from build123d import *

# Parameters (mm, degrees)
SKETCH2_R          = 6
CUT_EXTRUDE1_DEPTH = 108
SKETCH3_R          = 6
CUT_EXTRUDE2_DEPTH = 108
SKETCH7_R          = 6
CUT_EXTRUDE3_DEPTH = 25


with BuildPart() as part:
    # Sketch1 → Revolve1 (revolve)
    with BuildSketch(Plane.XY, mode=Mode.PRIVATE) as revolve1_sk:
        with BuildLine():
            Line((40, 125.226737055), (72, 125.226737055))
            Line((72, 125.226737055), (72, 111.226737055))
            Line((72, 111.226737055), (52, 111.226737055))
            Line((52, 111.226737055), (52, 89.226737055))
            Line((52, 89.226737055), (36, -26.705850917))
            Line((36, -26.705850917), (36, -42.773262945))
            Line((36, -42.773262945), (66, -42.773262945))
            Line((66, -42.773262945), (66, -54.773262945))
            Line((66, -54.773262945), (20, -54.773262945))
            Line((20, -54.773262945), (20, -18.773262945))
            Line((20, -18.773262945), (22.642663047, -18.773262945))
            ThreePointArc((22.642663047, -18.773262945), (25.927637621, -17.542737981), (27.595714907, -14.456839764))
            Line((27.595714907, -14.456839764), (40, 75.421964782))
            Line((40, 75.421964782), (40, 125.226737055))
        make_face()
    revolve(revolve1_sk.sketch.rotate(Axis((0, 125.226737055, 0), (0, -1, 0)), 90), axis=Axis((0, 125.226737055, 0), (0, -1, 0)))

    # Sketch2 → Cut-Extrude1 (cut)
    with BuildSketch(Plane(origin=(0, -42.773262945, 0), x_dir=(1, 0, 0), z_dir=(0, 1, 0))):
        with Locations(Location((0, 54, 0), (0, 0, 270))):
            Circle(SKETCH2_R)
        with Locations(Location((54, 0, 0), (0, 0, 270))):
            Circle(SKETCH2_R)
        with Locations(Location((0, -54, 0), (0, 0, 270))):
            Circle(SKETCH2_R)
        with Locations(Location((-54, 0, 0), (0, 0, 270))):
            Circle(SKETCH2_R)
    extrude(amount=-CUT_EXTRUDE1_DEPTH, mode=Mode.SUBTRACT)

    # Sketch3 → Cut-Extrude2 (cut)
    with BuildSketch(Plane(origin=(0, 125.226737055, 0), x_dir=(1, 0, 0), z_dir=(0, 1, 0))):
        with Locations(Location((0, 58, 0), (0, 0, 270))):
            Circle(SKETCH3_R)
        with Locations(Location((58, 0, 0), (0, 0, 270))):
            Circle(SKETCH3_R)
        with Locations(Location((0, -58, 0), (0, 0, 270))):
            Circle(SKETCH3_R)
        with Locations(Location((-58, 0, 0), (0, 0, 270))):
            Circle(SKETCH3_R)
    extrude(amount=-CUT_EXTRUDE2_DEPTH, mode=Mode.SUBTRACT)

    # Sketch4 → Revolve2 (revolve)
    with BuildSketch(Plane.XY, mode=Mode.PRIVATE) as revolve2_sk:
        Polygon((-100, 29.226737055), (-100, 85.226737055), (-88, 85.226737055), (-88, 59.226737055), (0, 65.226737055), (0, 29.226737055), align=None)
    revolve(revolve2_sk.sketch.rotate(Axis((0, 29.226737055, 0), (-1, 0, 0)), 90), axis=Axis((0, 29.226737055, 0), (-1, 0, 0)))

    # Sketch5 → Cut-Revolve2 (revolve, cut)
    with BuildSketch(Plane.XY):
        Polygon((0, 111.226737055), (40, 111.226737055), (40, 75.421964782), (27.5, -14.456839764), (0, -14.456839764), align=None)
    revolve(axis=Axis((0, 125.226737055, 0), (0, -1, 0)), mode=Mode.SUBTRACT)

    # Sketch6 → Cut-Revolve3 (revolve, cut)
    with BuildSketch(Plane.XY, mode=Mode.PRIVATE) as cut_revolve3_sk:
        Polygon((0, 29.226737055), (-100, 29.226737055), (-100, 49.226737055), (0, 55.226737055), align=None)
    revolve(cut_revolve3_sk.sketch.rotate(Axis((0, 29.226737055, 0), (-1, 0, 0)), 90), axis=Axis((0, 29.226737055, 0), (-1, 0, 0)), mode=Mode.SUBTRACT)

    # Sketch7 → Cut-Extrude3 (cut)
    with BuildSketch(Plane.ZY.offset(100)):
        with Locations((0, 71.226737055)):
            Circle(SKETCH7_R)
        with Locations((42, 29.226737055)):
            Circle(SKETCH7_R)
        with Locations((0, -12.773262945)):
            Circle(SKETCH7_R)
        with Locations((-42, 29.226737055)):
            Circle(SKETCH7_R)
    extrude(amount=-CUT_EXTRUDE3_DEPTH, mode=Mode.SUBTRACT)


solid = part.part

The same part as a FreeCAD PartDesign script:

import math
import FreeCAD as App
import Part
import Sketcher
Q = App.Units.Quantity


def add_polygon(sketch, points):
    """Adds a closed chain of lines whose ends are joined by coincident constraints."""
    first, n = sketch.GeometryCount, len(points)
    for a, b in zip(points, points[1:] + points[:1]):
        sketch.addGeometry(Part.LineSegment(App.Vector(*a, 0), App.Vector(*b, 0)), False)
    for i in range(n):
        sketch.addConstraint(Sketcher.Constraint("Coincident", first + i, 2, first + (i + 1) % n, 1))

doc = App.newDocument("Part")
params = doc.addObject("Spreadsheet::Sheet", "Params")
for row, (alias, value) in enumerate([
    ("sketch1_radius", "5 mm"),
    ("sketch1_width", "32 mm"),
    ("sketch1_width2", "46 mm"),
    ("sketch1_width3", "30 mm"),
    ("sketch1_width4", "20 mm"),
    ("revolution_angle", "360 deg"),
    ("sketch2_diameter", "12 mm"),
    ("pocket1_length", "108 mm"),
    ("sketch3_diameter", "12 mm"),
    ("pocket2_length", "108 mm"),
    ("sketch4_width", "100 mm"),
    ("sketch4_width2", "12 mm"),
    ("sketch4_height", "56 mm"),
    ("sketch4_height2", "36 mm"),
    ("sketch4_height3", "26 mm"),
    ("revolution2_angle", "360 deg"),
    ("sketch5_width", "40 mm"),
    ("sketch5_width2", "27.5 mm"),
    ("groove_angle", "360 deg"),
    ("sketch6_width", "100 mm"),
    ("sketch6_height", "26 mm"),
    ("sketch6_height2", "20 mm"),
    ("groove2_angle", "360 deg"),
    ("sketch7_diameter", "12 mm"),
    ("pocket3_length", "25 mm"),
], start=1):
    params.set(f"A{row}", alias)
    params.set(f"B{row}", "=" + value)
    params.setAlias(f"B{row}", alias)

body = doc.addObject("PartDesign::Body", "Body")

sketch1 = body.newObject("Sketcher::SketchObject", "Sketch")
sketch1.AttachmentSupport = (doc.getObject("XY_Plane"), [""])
sketch1.MapMode = "FlatFace"
sketch1.addGeometry([
    Part.LineSegment(App.Vector(72, 125.2, 0), App.Vector(40, 125.2, 0)),
    Part.LineSegment(App.Vector(40, 125.2, 0), App.Vector(40, 75.4, 0)),
    Part.LineSegment(App.Vector(40, 75.4, 0), App.Vector(27.6, -14.5, 0)),
    Part.ArcOfCircle(Part.Circle(App.Vector(22.6, -13.8, 0), App.Vector(0, 0, 1), 5), math.radians(-90), math.radians(-8)),
    Part.LineSegment(App.Vector(22.6, -18.8, 0), App.Vector(20, -18.8, 0)),
    Part.LineSegment(App.Vector(20, -18.8, 0), App.Vector(20, -54.8, 0)),
    Part.LineSegment(App.Vector(20, -54.8, 0), App.Vector(66, -54.8, 0)),
    Part.LineSegment(App.Vector(66, -54.8, 0), App.Vector(66, -42.8, 0)),
    Part.LineSegment(App.Vector(66, -42.8, 0), App.Vector(36, -42.8, 0)),
    Part.LineSegment(App.Vector(36, -42.8, 0), App.Vector(36, -26.7, 0)),
    Part.LineSegment(App.Vector(36, -26.7, 0), App.Vector(52, 89.2, 0)),
    Part.LineSegment(App.Vector(52, 89.2, 0), App.Vector(52, 111.2, 0)),
    Part.LineSegment(App.Vector(52, 111.2, 0), App.Vector(72, 111.2, 0)),
    Part.LineSegment(App.Vector(72, 111.2, 0), App.Vector(72, 125.2, 0)),
], False)
sketch1.addConstraint([
    Sketcher.Constraint("Coincident", 0, 2, 1, 1),
    Sketcher.Constraint("Coincident", 1, 2, 2, 1),
    Sketcher.Constraint("Tangent", 2, 2, 3, 2),
    Sketcher.Constraint("Tangent", 3, 1, 4, 1),
    Sketcher.Constraint("Coincident", 4, 2, 5, 1),
    Sketcher.Constraint("Coincident", 5, 2, 6, 1),
    Sketcher.Constraint("Coincident", 6, 2, 7, 1),
    Sketcher.Constraint("Coincident", 7, 2, 8, 1),
    Sketcher.Constraint("Coincident", 8, 2, 9, 1),
    Sketcher.Constraint("Coincident", 9, 2, 10, 1),
    Sketcher.Constraint("Coincident", 10, 2, 11, 1),
    Sketcher.Constraint("Coincident", 11, 2, 12, 1),
    Sketcher.Constraint("Coincident", 12, 2, 13, 1),
    Sketcher.Constraint("Coincident", 13, 2, 0, 1),
    Sketcher.Constraint("Horizontal", 0),
    Sketcher.Constraint("Vertical", 1),
    Sketcher.Constraint("Horizontal", 4),
    Sketcher.Constraint("Vertical", 5),
    Sketcher.Constraint("Horizontal", 6),
    Sketcher.Constraint("Vertical", 7),
    Sketcher.Constraint("Horizontal", 8),
    Sketcher.Constraint("Vertical", 9),
    Sketcher.Constraint("Vertical", 11),
    Sketcher.Constraint("Horizontal", 12),
    Sketcher.Constraint("Vertical", 13),
    Sketcher.Constraint("Parallel", 2, 10),
    Sketcher.Constraint("Radius", 3, Q("5 mm")),
    Sketcher.Constraint("DistanceX", 0, 2, 0, 1, Q("32 mm")),
    Sketcher.Constraint("DistanceX", 6, 1, 6, 2, Q("46 mm")),
    Sketcher.Constraint("DistanceX", 8, 2, 8, 1, Q("30 mm")),
    Sketcher.Constraint("DistanceX", 12, 1, 12, 2, Q("20 mm")),
    Sketcher.Constraint("DistanceY", 5, 2, 5, 1, Q("36 mm")),
    Sketcher.Constraint("DistanceY", 7, 1, 7, 2, Q("12 mm")),
    Sketcher.Constraint("DistanceY", 11, 1, 11, 2, Q("22 mm")),
    Sketcher.Constraint("DistanceY", 13, 1, 13, 2, Q("14 mm")),
    Sketcher.Constraint("DistanceX", -1, 1, 0, 2, Q("40 mm")),
    Sketcher.Constraint("DistanceX", -1, 1, 4, 2, Q("20 mm")),
    Sketcher.Constraint("DistanceY", 3, 3, 0, 2, Q("139 mm")),
    Sketcher.Constraint("Distance", 10, Q("117.03147 mm")),
    Sketcher.Constraint("DistanceX", 4, 2, 4, 1, Q("2.642663 mm")),
    Sketcher.Constraint("DistanceY", 2, 2, -1, 1, Q("14.45684 mm")),
])
sketch1.setExpression("Constraints[26]", "Params.sketch1_radius")
sketch1.setExpression("Constraints[27]", "Params.sketch1_width")
sketch1.setExpression("Constraints[28]", "Params.sketch1_width2")
sketch1.setExpression("Constraints[29]", "Params.sketch1_width3")
sketch1.setExpression("Constraints[30]", "Params.sketch1_width4")
revolution = body.newObject("PartDesign::Revolution", "Revolution")
revolution.Profile = sketch1
revolution.ReferenceAxis = (sketch1, ["V_Axis"])
revolution.setExpression("Angle", "Params.revolution_angle")

sketch2 = body.newObject("Sketcher::SketchObject", "Sketch001")
sketch2.AttachmentSupport = (doc.getObject("XZ_Plane"), [""])
sketch2.MapMode = "FlatFace"
sketch2.AttachmentOffset = App.Placement(App.Vector(0, 0, 42.773263), App.Rotation())
sketch2.addGeometry([
    Part.Circle(App.Vector(0, -54, 0), App.Vector(0, 0, 1), 6),
    Part.Circle(App.Vector(54, 0, 0), App.Vector(0, 0, 1), 6),
    Part.Circle(App.Vector(0, 54, 0), App.Vector(0, 0, 1), 6),
    Part.Circle(App.Vector(-54, 0, 0), App.Vector(0, 0, 1), 6),
], False)
sketch2.addConstraint([
    Sketcher.Constraint("Equal", 0, 1),
    Sketcher.Constraint("Equal", 1, 2),
    Sketcher.Constraint("Equal", 2, 3),
    Sketcher.Constraint("Symmetric", 0, 3, 2, 3, -1, 1),
    Sketcher.Constraint("Symmetric", 1, 3, 3, 3, -1, 1),
    Sketcher.Constraint("PointOnObject", 0, 3, -2),
    Sketcher.Constraint("PointOnObject", 1, 3, -1),
    Sketcher.Constraint("Diameter", 0, Q("12 mm")),
    Sketcher.Constraint("DistanceY", 0, 3, -1, 1, Q("54 mm")),
    Sketcher.Constraint("DistanceX", -1, 1, 1, 3, Q("54 mm")),
])
sketch2.setExpression("Constraints[7]", "Params.sketch2_diameter")
pocket1 = body.newObject("PartDesign::Pocket", "Pocket")
pocket1.Profile = sketch2
pocket1.setExpression("Length", "Params.pocket1_length")
pocket1.Reversed = True

sketch3 = body.newObject("Sketcher::SketchObject", "Sketch002")
sketch3.AttachmentSupport = (doc.getObject("XZ_Plane"), [""])
sketch3.MapMode = "FlatFace"
sketch3.AttachmentOffset = App.Placement(App.Vector(0, 0, -125.226737), App.Rotation())
sketch3.addGeometry([
    Part.Circle(App.Vector(0, -58, 0), App.Vector(0, 0, 1), 6),
    Part.Circle(App.Vector(58, 0, 0), App.Vector(0, 0, 1), 6),
    Part.Circle(App.Vector(0, 58, 0), App.Vector(0, 0, 1), 6),
    Part.Circle(App.Vector(-58, 0, 0), App.Vector(0, 0, 1), 6),
], False)
sketch3.addConstraint([
    Sketcher.Constraint("Equal", 0, 1),
    Sketcher.Constraint("Equal", 1, 2),
    Sketcher.Constraint("Equal", 2, 3),
    Sketcher.Constraint("Symmetric", 0, 3, 2, 3, -1, 1),
    Sketcher.Constraint("Symmetric", 1, 3, 3, 3, -1, 1),
    Sketcher.Constraint("PointOnObject", 0, 3, -2),
    Sketcher.Constraint("PointOnObject", 1, 3, -1),
    Sketcher.Constraint("Diameter", 0, Q("12 mm")),
    Sketcher.Constraint("DistanceY", 0, 3, -1, 1, Q("58 mm")),
    Sketcher.Constraint("DistanceX", -1, 1, 1, 3, Q("58 mm")),
])
sketch3.setExpression("Constraints[7]", "Params.sketch3_diameter")
pocket2 = body.newObject("PartDesign::Pocket", "Pocket001")
pocket2.Profile = sketch3
pocket2.setExpression("Length", "Params.pocket2_length")
pocket2.Reversed = True

sketch4 = body.newObject("Sketcher::SketchObject", "Sketch003")
sketch4.AttachmentSupport = (doc.getObject("XY_Plane"), [""])
sketch4.MapMode = "FlatFace"
add_polygon(sketch4, [(-100, 85), (-100, 29), (0, 29), (0, 65), (-88, 59), (-88, 85)])
sketch4.addGeometry(Part.LineSegment(App.Vector(0, 29, 0), App.Vector(-100, 29, 0)), True)
sketch4.addConstraint([
    Sketcher.Constraint("Vertical", 0),
    Sketcher.Constraint("Horizontal", 1),
    Sketcher.Constraint("Vertical", 2),
    Sketcher.Constraint("Vertical", 4),
    Sketcher.Constraint("Horizontal", 5),
    Sketcher.Constraint("Horizontal", 6),
    Sketcher.Constraint("Coincident", 6, 1, 1, 2),
    Sketcher.Constraint("PointOnObject", 1, 2, -2),
    Sketcher.Constraint("Vertical", 5, 2, 6, 2),
    Sketcher.Constraint("DistanceX", 1, 1, 1, 2, Q("100 mm")),
    Sketcher.Constraint("DistanceX", 5, 2, 5, 1, Q("12 mm")),
    Sketcher.Constraint("DistanceY", 0, 2, 0, 1, Q("56 mm")),
    Sketcher.Constraint("DistanceY", 2, 1, 2, 2, Q("36 mm")),
    Sketcher.Constraint("DistanceY", 4, 1, 4, 2, Q("26 mm")),
    Sketcher.Constraint("DistanceY", -1, 1, 0, 2, Q("29.226737 mm")),
])
sketch4.setExpression("Constraints[15]", "Params.sketch4_width")
sketch4.setExpression("Constraints[16]", "Params.sketch4_width2")
sketch4.setExpression("Constraints[17]", "Params.sketch4_height")
sketch4.setExpression("Constraints[18]", "Params.sketch4_height2")
sketch4.setExpression("Constraints[19]", "Params.sketch4_height3")
revolution2 = body.newObject("PartDesign::Revolution", "Revolution001")
revolution2.Profile = sketch4
revolution2.ReferenceAxis = (sketch4, ["Axis0"])
revolution2.setExpression("Angle", "Params.revolution2_angle")

sketch5 = body.newObject("Sketcher::SketchObject", "Sketch004")
sketch5.AttachmentSupport = (doc.getObject("XY_Plane"), [""])
sketch5.MapMode = "FlatFace"
add_polygon(sketch5, [(40, 111), (0, 111), (0, -14), (28, -14), (40, 75)])
sketch5.addConstraint([
    Sketcher.Constraint("Horizontal", 0),
    Sketcher.Constraint("Vertical", 1),
    Sketcher.Constraint("Horizontal", 2),
    Sketcher.Constraint("Vertical", 4),
    Sketcher.Constraint("PointOnObject", 0, 2, -2),
    Sketcher.Constraint("DistanceX", 0, 2, 0, 1, Q("40 mm")),
    Sketcher.Constraint("DistanceX", 2, 1, 2, 2, Q("27.5 mm")),
    Sketcher.Constraint("DistanceY", 1, 2, 1, 1, Q("125.683577 mm")),
    Sketcher.Constraint("DistanceY", 4, 1, 4, 2, Q("35.804772 mm")),
    Sketcher.Constraint("DistanceY", 1, 2, -1, 1, Q("14.45684 mm")),
])
sketch5.setExpression("Constraints[10]", "Params.sketch5_width")
sketch5.setExpression("Constraints[11]", "Params.sketch5_width2")
groove = body.newObject("PartDesign::Groove", "Groove")
groove.Profile = sketch5
groove.ReferenceAxis = (sketch5, ["V_Axis"])
groove.setExpression("Angle", "Params.groove_angle")

sketch6 = body.newObject("Sketcher::SketchObject", "Sketch005")
sketch6.AttachmentSupport = (doc.getObject("XY_Plane"), [""])
sketch6.MapMode = "FlatFace"
add_polygon(sketch6, [(-100, 29), (0, 29), (0, 55), (-100, 49)])
sketch6.addGeometry(Part.LineSegment(App.Vector(0, 29, 0), App.Vector(-100, 29, 0)), True)
sketch6.addConstraint([
    Sketcher.Constraint("Horizontal", 0),
    Sketcher.Constraint("Vertical", 1),
    Sketcher.Constraint("Vertical", 3),
    Sketcher.Constraint("Horizontal", 4),
    Sketcher.Constraint("Coincident", 4, 1, 0, 2),
    Sketcher.Constraint("PointOnObject", 0, 2, -2),
    Sketcher.Constraint("Vertical", 2, 2, 4, 2),
    Sketcher.Constraint("DistanceX", 0, 1, 0, 2, Q("100 mm")),
    Sketcher.Constraint("DistanceY", 1, 1, 1, 2, Q("26 mm")),
    Sketcher.Constraint("DistanceY", 3, 2, 3, 1, Q("20 mm")),
    Sketcher.Constraint("DistanceY", -1, 1, 0, 2, Q("29.226737 mm")),
])
sketch6.setExpression("Constraints[11]", "Params.sketch6_width")
sketch6.setExpression("Constraints[12]", "Params.sketch6_height")
sketch6.setExpression("Constraints[13]", "Params.sketch6_height2")
groove2 = body.newObject("PartDesign::Groove", "Groove001")
groove2.Profile = sketch6
groove2.ReferenceAxis = (sketch6, ["Axis0"])
groove2.setExpression("Angle", "Params.groove2_angle")

sketch7 = body.newObject("Sketcher::SketchObject", "Sketch006")
sketch7.AttachmentSupport = (doc.getObject("YZ_Plane"), [""])
sketch7.MapMode = "FlatFace"
sketch7.AttachmentOffset = App.Placement(App.Vector(0, 0, -100), App.Rotation())
sketch7.addGeometry([
    Part.Circle(App.Vector(71, 0, 0), App.Vector(0, 0, 1), 6),
    Part.Circle(App.Vector(29, 42, 0), App.Vector(0, 0, 1), 6),
    Part.Circle(App.Vector(-13, 0, 0), App.Vector(0, 0, 1), 6),
    Part.Circle(App.Vector(29, -42, 0), App.Vector(0, 0, 1), 6),
], False)
sketch7.addConstraint([
    Sketcher.Constraint("Equal", 0, 1),
    Sketcher.Constraint("Equal", 1, 2),
    Sketcher.Constraint("Equal", 2, 3),
    Sketcher.Constraint("Symmetric", 1, 3, 3, 3, -1),
    Sketcher.Constraint("PointOnObject", 0, 3, -1),
    Sketcher.Constraint("PointOnObject", 2, 3, -1),
    Sketcher.Constraint("Diameter", 0, Q("12 mm")),
    Sketcher.Constraint("DistanceY", -1, 1, 1, 3, Q("42 mm")),
    Sketcher.Constraint("DistanceX", 1, 3, 0, 3, Q("42 mm")),
    Sketcher.Constraint("DistanceX", 2, 3, 1, 3, Q("42 mm")),
    Sketcher.Constraint("DistanceX", -1, 1, 0, 3, Q("71.226737 mm")),
])
sketch7.setExpression("Constraints[6]", "Params.sketch7_diameter")
pocket3 = body.newObject("PartDesign::Pocket", "Pocket002")
pocket3.Profile = sketch7
pocket3.setExpression("Length", "Params.pocket3_length")
pocket3.Reversed = True

doc.recompute()
